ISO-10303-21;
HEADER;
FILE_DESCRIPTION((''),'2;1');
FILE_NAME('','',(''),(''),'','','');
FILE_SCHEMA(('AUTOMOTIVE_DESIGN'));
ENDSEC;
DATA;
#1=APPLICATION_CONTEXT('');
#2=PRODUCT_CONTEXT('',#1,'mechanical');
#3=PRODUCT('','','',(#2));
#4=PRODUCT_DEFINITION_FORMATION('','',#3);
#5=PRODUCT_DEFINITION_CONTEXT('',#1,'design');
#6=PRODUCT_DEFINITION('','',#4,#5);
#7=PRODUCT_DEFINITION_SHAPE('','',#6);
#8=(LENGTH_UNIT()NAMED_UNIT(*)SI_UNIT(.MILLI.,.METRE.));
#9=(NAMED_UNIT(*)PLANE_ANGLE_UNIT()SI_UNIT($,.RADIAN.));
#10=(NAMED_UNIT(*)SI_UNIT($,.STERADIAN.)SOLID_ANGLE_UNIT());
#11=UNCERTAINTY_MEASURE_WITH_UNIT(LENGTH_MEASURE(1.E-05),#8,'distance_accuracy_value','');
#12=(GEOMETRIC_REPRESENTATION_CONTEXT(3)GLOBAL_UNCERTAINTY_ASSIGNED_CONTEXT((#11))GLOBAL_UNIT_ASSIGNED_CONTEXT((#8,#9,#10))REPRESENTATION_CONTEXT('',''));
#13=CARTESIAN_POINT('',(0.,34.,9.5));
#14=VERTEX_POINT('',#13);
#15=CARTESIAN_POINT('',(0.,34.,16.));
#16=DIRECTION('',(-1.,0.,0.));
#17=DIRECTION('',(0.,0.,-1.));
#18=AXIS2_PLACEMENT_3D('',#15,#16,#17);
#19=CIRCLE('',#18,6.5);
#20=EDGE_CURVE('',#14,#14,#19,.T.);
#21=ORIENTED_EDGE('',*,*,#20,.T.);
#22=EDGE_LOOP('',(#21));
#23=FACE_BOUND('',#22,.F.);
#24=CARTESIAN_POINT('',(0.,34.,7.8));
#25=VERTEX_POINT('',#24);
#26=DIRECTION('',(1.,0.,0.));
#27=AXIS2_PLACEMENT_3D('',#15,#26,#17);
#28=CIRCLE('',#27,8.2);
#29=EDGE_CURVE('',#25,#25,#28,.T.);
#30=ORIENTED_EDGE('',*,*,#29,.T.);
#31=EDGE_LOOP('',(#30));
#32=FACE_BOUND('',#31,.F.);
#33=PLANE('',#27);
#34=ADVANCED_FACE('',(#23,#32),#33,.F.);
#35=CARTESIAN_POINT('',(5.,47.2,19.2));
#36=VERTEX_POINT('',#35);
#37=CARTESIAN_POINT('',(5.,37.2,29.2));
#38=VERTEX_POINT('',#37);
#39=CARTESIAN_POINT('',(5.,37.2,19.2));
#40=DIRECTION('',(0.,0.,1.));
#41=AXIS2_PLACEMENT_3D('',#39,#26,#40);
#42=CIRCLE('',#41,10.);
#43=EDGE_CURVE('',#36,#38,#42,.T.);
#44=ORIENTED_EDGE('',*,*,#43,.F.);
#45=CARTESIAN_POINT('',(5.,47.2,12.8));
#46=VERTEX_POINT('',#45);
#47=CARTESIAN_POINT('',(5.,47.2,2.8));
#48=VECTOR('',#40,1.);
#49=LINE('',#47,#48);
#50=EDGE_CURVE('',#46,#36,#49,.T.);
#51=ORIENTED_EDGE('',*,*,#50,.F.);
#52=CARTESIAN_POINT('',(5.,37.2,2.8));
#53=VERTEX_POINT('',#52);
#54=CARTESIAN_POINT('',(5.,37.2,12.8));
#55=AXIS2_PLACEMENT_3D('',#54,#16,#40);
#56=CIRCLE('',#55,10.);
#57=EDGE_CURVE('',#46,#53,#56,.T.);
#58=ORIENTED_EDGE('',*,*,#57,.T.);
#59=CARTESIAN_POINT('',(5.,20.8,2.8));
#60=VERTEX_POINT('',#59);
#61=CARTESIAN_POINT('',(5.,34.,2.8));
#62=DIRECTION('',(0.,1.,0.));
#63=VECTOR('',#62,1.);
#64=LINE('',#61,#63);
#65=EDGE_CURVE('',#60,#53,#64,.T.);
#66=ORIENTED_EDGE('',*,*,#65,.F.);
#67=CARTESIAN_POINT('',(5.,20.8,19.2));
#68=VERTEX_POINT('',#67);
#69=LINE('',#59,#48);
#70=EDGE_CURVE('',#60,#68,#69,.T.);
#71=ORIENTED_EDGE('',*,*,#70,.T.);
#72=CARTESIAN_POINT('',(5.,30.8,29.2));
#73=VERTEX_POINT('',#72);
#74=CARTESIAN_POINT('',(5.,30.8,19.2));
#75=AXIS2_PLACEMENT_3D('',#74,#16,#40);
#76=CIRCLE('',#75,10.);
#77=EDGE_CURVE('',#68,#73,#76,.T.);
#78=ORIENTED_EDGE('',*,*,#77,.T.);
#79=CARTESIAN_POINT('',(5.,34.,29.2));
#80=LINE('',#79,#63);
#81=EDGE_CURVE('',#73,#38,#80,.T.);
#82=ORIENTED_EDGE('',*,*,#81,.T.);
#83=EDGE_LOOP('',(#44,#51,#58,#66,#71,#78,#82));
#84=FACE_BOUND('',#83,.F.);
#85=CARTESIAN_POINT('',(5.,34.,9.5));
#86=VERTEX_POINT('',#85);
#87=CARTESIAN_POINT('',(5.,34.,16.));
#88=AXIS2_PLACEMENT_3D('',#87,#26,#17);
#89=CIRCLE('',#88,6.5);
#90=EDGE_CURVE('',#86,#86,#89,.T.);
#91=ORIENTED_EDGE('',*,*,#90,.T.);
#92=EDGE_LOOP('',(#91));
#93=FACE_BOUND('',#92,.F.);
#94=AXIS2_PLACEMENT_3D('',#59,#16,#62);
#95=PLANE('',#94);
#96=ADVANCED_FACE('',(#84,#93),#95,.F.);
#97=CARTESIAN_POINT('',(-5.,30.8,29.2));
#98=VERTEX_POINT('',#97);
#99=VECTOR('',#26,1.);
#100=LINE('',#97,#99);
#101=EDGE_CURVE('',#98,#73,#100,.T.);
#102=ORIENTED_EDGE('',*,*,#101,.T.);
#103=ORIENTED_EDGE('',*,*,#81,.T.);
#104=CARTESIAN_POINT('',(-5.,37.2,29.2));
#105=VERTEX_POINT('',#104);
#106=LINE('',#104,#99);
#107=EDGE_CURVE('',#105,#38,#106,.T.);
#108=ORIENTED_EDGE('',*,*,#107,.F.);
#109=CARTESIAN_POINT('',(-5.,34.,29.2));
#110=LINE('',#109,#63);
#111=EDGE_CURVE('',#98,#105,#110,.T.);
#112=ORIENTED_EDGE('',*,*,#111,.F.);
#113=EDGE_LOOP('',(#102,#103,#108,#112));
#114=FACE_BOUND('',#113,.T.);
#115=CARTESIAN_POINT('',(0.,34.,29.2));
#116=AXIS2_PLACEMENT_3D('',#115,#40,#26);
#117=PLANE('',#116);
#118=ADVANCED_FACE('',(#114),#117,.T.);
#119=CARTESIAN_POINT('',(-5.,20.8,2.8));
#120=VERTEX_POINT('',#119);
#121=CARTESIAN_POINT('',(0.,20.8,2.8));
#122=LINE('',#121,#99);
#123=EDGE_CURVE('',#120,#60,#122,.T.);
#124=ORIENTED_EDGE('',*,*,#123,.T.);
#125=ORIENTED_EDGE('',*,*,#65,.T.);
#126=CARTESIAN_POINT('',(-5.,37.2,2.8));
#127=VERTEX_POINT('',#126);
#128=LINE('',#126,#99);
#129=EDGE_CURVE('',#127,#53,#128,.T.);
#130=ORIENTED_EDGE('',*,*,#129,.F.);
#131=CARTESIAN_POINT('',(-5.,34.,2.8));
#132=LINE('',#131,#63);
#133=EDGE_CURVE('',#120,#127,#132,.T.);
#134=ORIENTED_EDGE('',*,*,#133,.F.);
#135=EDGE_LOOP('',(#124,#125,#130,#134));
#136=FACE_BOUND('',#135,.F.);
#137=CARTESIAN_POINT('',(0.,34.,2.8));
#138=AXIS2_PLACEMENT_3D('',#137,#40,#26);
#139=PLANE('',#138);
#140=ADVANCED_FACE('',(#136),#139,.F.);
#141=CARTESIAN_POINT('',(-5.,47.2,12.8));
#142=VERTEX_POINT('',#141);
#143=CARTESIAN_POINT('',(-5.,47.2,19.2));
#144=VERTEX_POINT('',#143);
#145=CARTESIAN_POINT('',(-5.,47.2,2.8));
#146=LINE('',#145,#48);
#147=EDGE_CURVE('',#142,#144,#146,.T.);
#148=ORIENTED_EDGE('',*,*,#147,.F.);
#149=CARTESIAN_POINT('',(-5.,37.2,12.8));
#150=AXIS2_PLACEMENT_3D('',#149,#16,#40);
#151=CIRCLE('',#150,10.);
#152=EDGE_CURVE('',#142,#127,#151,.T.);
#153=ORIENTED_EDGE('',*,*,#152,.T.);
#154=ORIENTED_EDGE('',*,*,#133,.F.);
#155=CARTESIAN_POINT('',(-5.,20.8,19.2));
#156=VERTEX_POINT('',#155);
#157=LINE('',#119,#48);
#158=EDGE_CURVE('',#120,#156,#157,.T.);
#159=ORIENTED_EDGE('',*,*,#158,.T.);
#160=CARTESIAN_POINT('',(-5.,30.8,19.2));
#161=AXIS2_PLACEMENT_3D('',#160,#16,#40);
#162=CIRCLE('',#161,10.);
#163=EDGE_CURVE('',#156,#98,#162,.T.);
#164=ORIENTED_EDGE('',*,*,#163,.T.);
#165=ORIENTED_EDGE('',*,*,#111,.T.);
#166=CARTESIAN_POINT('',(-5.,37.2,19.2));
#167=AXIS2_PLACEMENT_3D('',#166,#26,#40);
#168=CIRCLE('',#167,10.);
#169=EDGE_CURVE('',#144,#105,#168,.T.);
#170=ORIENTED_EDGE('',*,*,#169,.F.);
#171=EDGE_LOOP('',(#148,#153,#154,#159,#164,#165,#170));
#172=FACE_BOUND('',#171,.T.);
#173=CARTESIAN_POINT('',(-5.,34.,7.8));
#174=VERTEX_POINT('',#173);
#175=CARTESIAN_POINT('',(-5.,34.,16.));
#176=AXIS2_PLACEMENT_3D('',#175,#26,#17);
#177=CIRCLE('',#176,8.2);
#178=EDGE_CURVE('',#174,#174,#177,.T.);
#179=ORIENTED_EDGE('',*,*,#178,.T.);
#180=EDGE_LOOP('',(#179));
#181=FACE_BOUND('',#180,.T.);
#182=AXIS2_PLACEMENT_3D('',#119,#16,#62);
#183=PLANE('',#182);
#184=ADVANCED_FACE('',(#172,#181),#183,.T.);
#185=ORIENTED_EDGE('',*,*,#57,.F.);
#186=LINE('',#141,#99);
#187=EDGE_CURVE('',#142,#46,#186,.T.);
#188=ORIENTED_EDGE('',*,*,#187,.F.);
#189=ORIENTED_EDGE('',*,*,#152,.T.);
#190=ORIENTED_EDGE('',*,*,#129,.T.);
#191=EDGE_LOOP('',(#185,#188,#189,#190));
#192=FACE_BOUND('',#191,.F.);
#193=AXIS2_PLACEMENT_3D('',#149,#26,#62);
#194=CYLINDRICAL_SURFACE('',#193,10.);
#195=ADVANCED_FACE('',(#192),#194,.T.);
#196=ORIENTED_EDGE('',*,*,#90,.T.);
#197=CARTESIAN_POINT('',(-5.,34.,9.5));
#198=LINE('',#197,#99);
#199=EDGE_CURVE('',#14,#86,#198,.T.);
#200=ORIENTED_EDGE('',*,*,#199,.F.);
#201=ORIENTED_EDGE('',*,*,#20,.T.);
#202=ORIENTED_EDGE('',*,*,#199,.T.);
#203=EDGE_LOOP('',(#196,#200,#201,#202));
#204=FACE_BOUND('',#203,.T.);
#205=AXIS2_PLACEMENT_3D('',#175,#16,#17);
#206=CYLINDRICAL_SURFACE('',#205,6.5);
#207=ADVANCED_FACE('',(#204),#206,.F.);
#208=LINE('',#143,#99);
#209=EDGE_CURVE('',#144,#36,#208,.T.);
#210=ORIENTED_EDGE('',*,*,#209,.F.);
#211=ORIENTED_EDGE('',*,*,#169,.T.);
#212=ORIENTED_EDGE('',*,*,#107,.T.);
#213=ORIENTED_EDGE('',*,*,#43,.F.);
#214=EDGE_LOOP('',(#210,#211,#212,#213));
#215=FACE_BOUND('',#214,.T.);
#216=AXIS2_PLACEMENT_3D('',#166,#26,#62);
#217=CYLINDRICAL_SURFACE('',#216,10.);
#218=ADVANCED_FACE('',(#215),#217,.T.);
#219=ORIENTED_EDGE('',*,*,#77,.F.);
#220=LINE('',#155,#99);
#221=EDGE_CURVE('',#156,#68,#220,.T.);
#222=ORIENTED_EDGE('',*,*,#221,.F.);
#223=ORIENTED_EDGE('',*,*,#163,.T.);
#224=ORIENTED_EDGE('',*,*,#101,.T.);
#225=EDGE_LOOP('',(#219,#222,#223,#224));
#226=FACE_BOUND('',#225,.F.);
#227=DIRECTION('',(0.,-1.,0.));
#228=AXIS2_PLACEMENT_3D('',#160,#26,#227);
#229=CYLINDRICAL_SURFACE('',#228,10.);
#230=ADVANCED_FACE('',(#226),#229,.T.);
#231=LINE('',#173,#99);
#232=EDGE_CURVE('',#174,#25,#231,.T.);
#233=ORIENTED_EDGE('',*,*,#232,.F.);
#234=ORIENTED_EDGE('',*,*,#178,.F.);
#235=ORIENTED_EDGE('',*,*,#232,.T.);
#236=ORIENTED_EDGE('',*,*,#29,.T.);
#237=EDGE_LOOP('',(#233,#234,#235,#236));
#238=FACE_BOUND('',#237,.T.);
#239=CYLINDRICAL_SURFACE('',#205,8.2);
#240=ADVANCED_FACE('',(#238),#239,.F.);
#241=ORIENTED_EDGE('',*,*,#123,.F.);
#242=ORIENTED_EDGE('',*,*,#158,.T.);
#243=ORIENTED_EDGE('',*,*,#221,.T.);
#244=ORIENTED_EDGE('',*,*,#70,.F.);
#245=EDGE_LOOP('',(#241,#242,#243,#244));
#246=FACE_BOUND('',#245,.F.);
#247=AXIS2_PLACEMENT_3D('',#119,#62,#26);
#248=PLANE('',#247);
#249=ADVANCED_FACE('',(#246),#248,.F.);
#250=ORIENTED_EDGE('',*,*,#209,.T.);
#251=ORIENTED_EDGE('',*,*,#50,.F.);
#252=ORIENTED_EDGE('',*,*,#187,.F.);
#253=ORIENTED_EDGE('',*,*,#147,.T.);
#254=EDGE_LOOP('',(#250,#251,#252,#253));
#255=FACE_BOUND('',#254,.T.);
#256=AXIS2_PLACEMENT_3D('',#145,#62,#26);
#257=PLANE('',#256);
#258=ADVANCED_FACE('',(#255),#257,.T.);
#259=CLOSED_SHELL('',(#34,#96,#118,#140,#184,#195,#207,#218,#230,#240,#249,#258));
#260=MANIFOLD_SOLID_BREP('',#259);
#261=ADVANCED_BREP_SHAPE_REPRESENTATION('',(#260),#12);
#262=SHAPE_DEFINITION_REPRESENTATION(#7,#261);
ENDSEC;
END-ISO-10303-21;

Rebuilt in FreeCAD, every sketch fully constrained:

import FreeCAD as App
import Part
import Sketcher
Q = App.Units.Quantity


def edges_at(feature, points):
    """Names of the edges that pass closest to the given points."""
    edges = feature.Shape.Edges
    near = lambda p: min(range(len(edges)), key=lambda i: edges[i].distToShape(Part.Vertex(*p))[0])
    return sorted({f"Edge{near(p) + 1}" for p in points})

doc = App.newDocument("Part")
body = doc.addObject("PartDesign::Body", "Body")

sketch1 = doc.addObject("Sketcher::SketchObject", "Sketch")
body.addObject(sketch1)
sketch1.AttachmentSupport = (doc.YZ_Plane, [""])
sketch1.MapMode = "FlatFace"
sketch1.addGeometry(Part.Circle(App.Vector(0, 0, 0), App.Vector(0, 0, 1), 6), False)
sketch1.addConstraint([
    Sketcher.Constraint("Coincident", 0, 3, -1, 1),
    Sketcher.Constraint("Diameter", 0, Q("13 mm")),
])
pad1 = doc.addObject("PartDesign::Pad", "Pad")
body.addObject(pad1)
pad1.Profile = sketch1
pad1.Length = 10
body2 = doc.addObject("PartDesign::Body", "Body001")

sketch2 = doc.addObject("Sketcher::SketchObject", "Sketch001")
body2.addObject(sketch2)
sketch2.AttachmentSupport = (doc.getObject("YZ_Plane001"), [""])
sketch2.MapMode = "FlatFace"
sketch2.addGeometry(Part.Circle(App.Vector(0, 0, 0), App.Vector(0, 0, 1), 8), False)
sketch2.addConstraint([
    Sketcher.Constraint("Coincident", 0, 3, -1, 1),
    Sketcher.Constraint("Diameter", 0, Q("16.4 mm")),
])
pad2 = doc.addObject("PartDesign::Pad", "Pad001")
body2.addObject(pad2)
pad2.Profile = sketch2
pad2.Length = 5
doc.recompute()

boolean = doc.addObject("PartDesign::Boolean", "Boolean")
body2.addObject(boolean)
boolean.Type = "Fuse"
boolean.addObjects([body])
body3 = doc.addObject("PartDesign::Body", "Body002")

sketch3 = doc.addObject("Sketcher::SketchObject", "Sketch002")
body3.addObject(sketch3)
sketch3.AttachmentSupport = (doc.getObject("XY_Plane002"), [""])
sketch3.MapMode = "FlatFace"
sketch3.AttachmentOffset = App.Placement(App.Vector(0, 0, -13.2), App.Rotation())
sketch3.addGeometry([
    Part.LineSegment(App.Vector(0, 13, 0), App.Vector(0, -13, 0)),
    Part.LineSegment(App.Vector(0, -13, 0), App.Vector(10, -13, 0)),
    Part.LineSegment(App.Vector(10, -13, 0), App.Vector(10, 13, 0)),
    Part.LineSegment(App.Vector(10, 13, 0), App.Vector(0, 13, 0)),
], False)
sketch3.addConstraint([
    Sketcher.Constraint("Coincident", 0, 2, 1, 1),
    Sketcher.Constraint("Coincident", 1, 2, 2, 1),
    Sketcher.Constraint("Coincident", 2, 2, 3, 1),
    Sketcher.Constraint("Coincident", 3, 2, 0, 1),
    Sketcher.Constraint("Vertical", 0),
    Sketcher.Constraint("Horizontal", 1),
    Sketcher.Constraint("Vertical", 2),
    Sketcher.Constraint("Horizontal", 3),
    Sketcher.Constraint("Symmetric", 0, 2, 3, 2, -1, 1),
    Sketcher.Constraint("DistanceX", 1, 1, 1, 2, Q("10 mm")),
    Sketcher.Constraint("DistanceY", 0, 2, 0, 1, Q("26.4 mm")),
])
pad3 = doc.addObject("PartDesign::Pad", "Pad002")
body3.addObject(pad3)
pad3.Profile = sketch3
pad3.Length = 26.4
doc.recompute()

fillet = doc.addObject("PartDesign::Fillet", "Fillet")
body3.addObject(fillet)
fillet.Base = (pad3, edges_at(pad3, [(5, -13.2, 13.2), (5, 13.2, -13.2), (5, 13.2, 13.2)]))
fillet.Radius = 10
doc.recompute()

boolean2 = doc.addObject("PartDesign::Boolean", "Boolean001")
body3.addObject(boolean2)
boolean2.Type = "Cut"
boolean2.addObjects([body2])
body4 = doc.addObject("PartDesign::Body", "Body003")
doc.recompute()

body3.Placement = App.Placement(App.Vector(-5, 26, 13.2), App.Rotation(App.Vector(0, 0, 1), 0))
boolean3 = doc.addObject("PartDesign::Boolean", "Boolean002")
body4.addObject(boolean3)
boolean3.Type = "Fuse"
boolean3.addObjects([body3])
body5 = doc.addObject("PartDesign::Body", "Body004")
doc.recompute()

body4.Placement = App.Placement(App.Vector(0, 0, -6.2), App.Rotation(App.Vector(0, 0, 1), 0))
boolean4 = doc.addObject("PartDesign::Boolean", "Boolean003")
body5.addObject(boolean4)
boolean4.Type = "Fuse"
boolean4.addObjects([body4])
body6 = doc.addObject("PartDesign::Body", "Body005")
doc.recompute()

body5.Placement = App.Placement(App.Vector(0, 8, 9), App.Rotation(App.Vector(0, 0, 1), 0))
boolean5 = doc.addObject("PartDesign::Boolean", "Boolean004")
body6.addObject(boolean5)
boolean5.Type = "Fuse"
boolean5.addObjects([body5])

doc.recompute()
